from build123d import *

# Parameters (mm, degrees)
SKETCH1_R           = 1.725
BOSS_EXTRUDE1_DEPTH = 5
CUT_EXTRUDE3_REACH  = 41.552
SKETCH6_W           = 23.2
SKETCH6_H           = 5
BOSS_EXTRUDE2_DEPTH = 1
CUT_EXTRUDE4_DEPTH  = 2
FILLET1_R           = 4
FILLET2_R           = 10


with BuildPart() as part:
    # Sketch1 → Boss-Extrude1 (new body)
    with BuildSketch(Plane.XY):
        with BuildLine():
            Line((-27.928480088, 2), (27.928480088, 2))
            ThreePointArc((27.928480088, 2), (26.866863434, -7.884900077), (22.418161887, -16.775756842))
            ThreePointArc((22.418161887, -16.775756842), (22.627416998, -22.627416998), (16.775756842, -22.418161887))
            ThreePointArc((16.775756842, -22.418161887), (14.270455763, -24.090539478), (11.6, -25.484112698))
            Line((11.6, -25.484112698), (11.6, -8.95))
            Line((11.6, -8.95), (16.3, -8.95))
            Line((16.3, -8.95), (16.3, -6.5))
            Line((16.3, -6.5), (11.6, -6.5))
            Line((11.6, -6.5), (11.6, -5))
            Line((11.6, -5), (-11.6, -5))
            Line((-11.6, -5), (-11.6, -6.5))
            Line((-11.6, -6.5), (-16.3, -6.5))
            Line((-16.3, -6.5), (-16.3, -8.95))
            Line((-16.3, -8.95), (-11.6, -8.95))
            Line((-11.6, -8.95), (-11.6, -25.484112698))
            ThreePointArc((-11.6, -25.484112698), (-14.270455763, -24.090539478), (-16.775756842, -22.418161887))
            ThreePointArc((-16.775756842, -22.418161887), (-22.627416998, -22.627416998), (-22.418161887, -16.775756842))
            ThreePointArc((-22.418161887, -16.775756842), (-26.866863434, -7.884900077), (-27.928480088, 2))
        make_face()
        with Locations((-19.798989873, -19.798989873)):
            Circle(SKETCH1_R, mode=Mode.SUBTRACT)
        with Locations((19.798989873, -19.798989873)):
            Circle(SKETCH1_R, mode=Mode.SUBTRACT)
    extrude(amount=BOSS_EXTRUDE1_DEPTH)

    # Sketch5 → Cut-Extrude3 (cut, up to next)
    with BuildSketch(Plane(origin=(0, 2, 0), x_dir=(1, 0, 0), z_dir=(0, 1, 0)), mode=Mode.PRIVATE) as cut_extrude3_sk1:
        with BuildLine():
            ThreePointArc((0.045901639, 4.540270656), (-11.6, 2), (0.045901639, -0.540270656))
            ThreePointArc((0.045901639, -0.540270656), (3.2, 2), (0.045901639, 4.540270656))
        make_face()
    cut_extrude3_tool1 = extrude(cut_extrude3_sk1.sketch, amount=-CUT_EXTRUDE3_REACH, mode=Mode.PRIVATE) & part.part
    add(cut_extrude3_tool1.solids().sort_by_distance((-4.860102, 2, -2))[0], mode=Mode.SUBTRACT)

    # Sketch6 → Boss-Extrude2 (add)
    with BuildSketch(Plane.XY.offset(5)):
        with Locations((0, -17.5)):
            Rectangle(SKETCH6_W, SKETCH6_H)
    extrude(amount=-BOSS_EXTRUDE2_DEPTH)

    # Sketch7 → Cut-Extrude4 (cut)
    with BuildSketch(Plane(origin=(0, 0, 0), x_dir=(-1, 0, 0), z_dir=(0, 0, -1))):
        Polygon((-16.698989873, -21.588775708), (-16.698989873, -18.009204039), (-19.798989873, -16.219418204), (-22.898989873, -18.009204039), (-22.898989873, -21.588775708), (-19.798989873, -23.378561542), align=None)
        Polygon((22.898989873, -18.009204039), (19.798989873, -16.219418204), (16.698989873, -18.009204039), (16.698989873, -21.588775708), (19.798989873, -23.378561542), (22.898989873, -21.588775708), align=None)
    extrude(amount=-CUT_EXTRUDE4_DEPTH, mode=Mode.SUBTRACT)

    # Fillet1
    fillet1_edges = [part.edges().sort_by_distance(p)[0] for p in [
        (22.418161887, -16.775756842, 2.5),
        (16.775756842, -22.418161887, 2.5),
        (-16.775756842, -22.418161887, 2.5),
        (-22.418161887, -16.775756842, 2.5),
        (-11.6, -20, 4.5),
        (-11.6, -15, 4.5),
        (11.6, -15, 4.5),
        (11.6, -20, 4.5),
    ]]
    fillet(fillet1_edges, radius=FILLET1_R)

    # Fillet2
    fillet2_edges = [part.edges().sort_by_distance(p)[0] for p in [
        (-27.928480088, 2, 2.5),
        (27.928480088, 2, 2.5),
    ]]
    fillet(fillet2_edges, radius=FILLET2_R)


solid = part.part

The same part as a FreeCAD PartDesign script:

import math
import FreeCAD as App
import Part
import Sketcher
from FreeCAD import Vector
Q = App.Units.Quantity


def edges_at(feature, points):
    """Names of the edges that pass closest to the given points."""
    edges = feature.Shape.Edges
    near = lambda p: min(range(len(edges)), key=lambda i: edges[i].distToShape(Part.Vertex(*p))[0])
    return sorted({f"Edge{near(p) + 1}" for p in points})


def add_polygon(sketch, points):
    """Adds a closed chain of lines whose ends are joined by coincident constraints."""
    first, n = sketch.GeometryCount, len(points)
    for a, b in zip(points, points[1:] + points[:1]):
        sketch.addGeometry(Part.LineSegment(App.Vector(*a, 0), App.Vector(*b, 0)), False)
    for i in range(n):
        sketch.addConstraint(Sketcher.Constraint("Coincident", first + i, 2, first + (i + 1) % n, 1))

doc = App.newDocument("Part")
params = doc.addObject("Spreadsheet::Sheet", "Params")
for row, (alias, value) in enumerate([
    ("sketch1_radius", "28 mm"),
    ("sketch1_radius2", "4 mm"),
    ("sketch1_diameter", "3.45 mm"),
    ("sketch1_width", "4.7 mm"),
    ("sketch1_width2", "23.2 mm"),
    ("pad1_length", "5 mm"),
    ("sketch2_radius", "6.1 mm"),
    ("sketch2_radius2", "2.6 mm"),
    ("pocket1_length", "7 mm"),
    ("sketch3_height", "5 mm"),
    ("sketch3_width", "23.2 mm"),
    ("pad2_length", "1 mm"),
    ("pocket2_length", "2 mm"),
    ("fillet_radius", "4 mm"),
    ("fillet2_radius", "10 mm"),
], start=1):
    params.set(f"A{row}", alias)
    params.set(f"B{row}", "=" + value)
    params.setAlias(f"B{row}", alias)

body = doc.addObject("PartDesign::Body", "Body")

sketch1 = doc.addObject("Sketcher::SketchObject", "Sketch")
body.addObject(sketch1)
sketch1.AttachmentSupport = (doc.XY_Plane, [""])
sketch1.MapMode = "FlatFace"
sketch1.addGeometry(Part.LineSegment(Vector(27.9, 2, 0), Vector(-27.9, 2, 0)), False)
sketch1.addGeometry(Part.ArcOfCircle(Part.Circle(Vector(0, 0, 0), Vector(0, 0, 1), 28), math.radians(176), math.radians(217)), False)
sketch1.addGeometry(Part.ArcOfCircle(Part.Circle(Vector(-19.8, -19.8, 0), Vector(0, 0, 1), 4), math.radians(131), math.radians(319)), False)
sketch1.addGeometry(Part.ArcOfCircle(Part.Circle(Vector(0, 0, 0), Vector(0, 0, 1), 28), math.radians(-126.81), math.radians(-114.47)), False)
sketch1.addGeometry(Part.LineSegment(Vector(-11.6, -25.5, 0), Vector(-11.6, -8.9, 0)), False)
sketch1.addGeometry(Part.LineSegment(Vector(-11.6, -8.9, 0), Vector(-16.3, -8.9, 0)), False)
sketch1.addGeometry(Part.LineSegment(Vector(-16.3, -8.9, 0), Vector(-16.3, -6.5, 0)), False)
sketch1.addGeometry(Part.LineSegment(Vector(-16.3, -6.5, 0), Vector(-11.6, -6.5, 0)), False)
sketch1.addGeometry(Part.LineSegment(Vector(-11.6, -6.5, 0), Vector(-11.6, -5, 0)), False)
sketch1.addGeometry(Part.LineSegment(Vector(-11.6, -5, 0), Vector(11.6, -5, 0)), False)
sketch1.addGeometry(Part.LineSegment(Vector(11.6, -5, 0), Vector(11.6, -6.5, 0)), False)
sketch1.addGeometry(Part.LineSegment(Vector(11.6, -6.5, 0), Vector(16.3, -6.5, 0)), False)
sketch1.addGeometry(Part.LineSegment(Vector(16.3, -6.5, 0), Vector(16.3, -8.9, 0)), False)
sketch1.addGeometry(Part.LineSegment(Vector(16.3, -8.9, 0), Vector(11.6, -8.9, 0)), False)
sketch1.addGeometry(Part.LineSegment(Vector(11.6, -8.9, 0), Vector(11.6, -25.5, 0)), False)
sketch1.addGeometry(Part.ArcOfCircle(Part.Circle(Vector(0, 0, 0), Vector(0, 0, 1), 28), math.radians(-65.53), math.radians(-53.19)), False)
sketch1.addGeometry(Part.ArcOfCircle(Part.Circle(Vector(19.8, -19.8, 0), Vector(0, 0, 1), 4), math.radians(-139), math.radians(49)), False)
sketch1.addGeometry(Part.ArcOfCircle(Part.Circle(Vector(0, 0, 0), Vector(0, 0, 1), 28), math.radians(-37), math.radians(4)), False)
sketch1.addGeometry(Part.Circle(Vector(19.8, -19.8, 0), Vector(0, 0, 1), 1.7), False)
sketch1.addGeometry(Part.Circle(Vector(-19.8, -19.8, 0), Vector(0, 0, 1), 1.7), False)
sketch1.addConstraint(Sketcher.Constraint("Coincident", 0, 2, 1, 1))
sketch1.addConstraint(Sketcher.Constraint("Coincident", 1, 2, 2, 1))
sketch1.addConstraint(Sketcher.Constraint("Coincident", 2, 2, 3, 1))
sketch1.addConstraint(Sketcher.Constraint("Coincident", 3, 2, 4, 1))
sketch1.addConstraint(Sketcher.Constraint("Coincident", 4, 2, 5, 1))
sketch1.addConstraint(Sketcher.Constraint("Coincident", 5, 2, 6, 1))
sketch1.addConstraint(Sketcher.Constraint("Coincident", 6, 2, 7, 1))
sketch1.addConstraint(Sketcher.Constraint("Coincident", 7, 2, 8, 1))
sketch1.addConstraint(Sketcher.Constraint("Coincident", 8, 2, 9, 1))
sketch1.addConstraint(Sketcher.Constraint("Coincident", 9, 2, 10, 1))
sketch1.addConstraint(Sketcher.Constraint("Coincident", 10, 2, 11, 1))
sketch1.addConstraint(Sketcher.Constraint("Coincident", 11, 2, 12, 1))
sketch1.addConstraint(Sketcher.Constraint("Coincident", 12, 2, 13, 1))
sketch1.addConstraint(Sketcher.Constraint("Coincident", 13, 2, 14, 1))
sketch1.addConstraint(Sketcher.Constraint("Coincident", 14, 2, 15, 1))
sketch1.addConstraint(Sketcher.Constraint("Coincident", 15, 2, 16, 1))
sketch1.addConstraint(Sketcher.Constraint("Coincident", 16, 2, 17, 1))
sketch1.addConstraint(Sketcher.Constraint("Coincident", 17, 2, 0, 1))
sketch1.addConstraint(Sketcher.Constraint("Horizontal", 0))
sketch1.addConstraint(Sketcher.Constraint("Vertical", 4))
sketch1.addConstraint(Sketcher.Constraint("Horizontal", 5))
sketch1.addConstraint(Sketcher.Constraint("Vertical", 6))
sketch1.addConstraint(Sketcher.Constraint("Horizontal", 7))
sketch1.addConstraint(Sketcher.Constraint("Vertical", 8))
sketch1.addConstraint(Sketcher.Constraint("Horizontal", 9))
sketch1.addConstraint(Sketcher.Constraint("Vertical", 10))
sketch1.addConstraint(Sketcher.Constraint("Horizontal", 11))
sketch1.addConstraint(Sketcher.Constraint("Vertical", 12))
sketch1.addConstraint(Sketcher.Constraint("Horizontal", 13))
sketch1.addConstraint(Sketcher.Constraint("Vertical", 14))
sketch1.addConstraint(Sketcher.Constraint("Coincident", 1, 3, -1, 1))
sketch1.addConstraint(Sketcher.Constraint("Coincident", 3, 3, -1, 1))
sketch1.addConstraint(Sketcher.Constraint("Coincident", 15, 3, -1, 1))
sketch1.addConstraint(Sketcher.Constraint("Coincident", 17, 3, -1, 1))
sketch1.addConstraint(Sketcher.Constraint("Coincident", 18, 3, 16, 3))
sketch1.addConstraint(Sketcher.Constraint("Coincident", 19, 3, 2, 3))
sketch1.addConstraint(Sketcher.Constraint("Equal", 1, 3))
sketch1.addConstraint(Sketcher.Constraint("Equal", 3, 15))
sketch1.addConstraint(Sketcher.Constraint("Equal", 2, 16))
sketch1.addConstraint(Sketcher.Constraint("Equal", 15, 17))
sketch1.addConstraint(Sketcher.Constraint("Equal", 18, 19))
sketch1.addConstraint(Sketcher.Constraint("Symmetric", 2, 3, 16, 3, -2))
sketch1.addConstraint(Sketcher.Constraint("Symmetric", 7, 2, 10, 2, -2))
sketch1.addConstraint(Sketcher.Constraint("Symmetric", 5, 2, 12, 2, -2))
sketch1.addConstraint(Sketcher.Constraint("Horizontal", 3, 2, 14, 2))
sketch1.addConstraint(Sketcher.Constraint("Vertical", 4, 2, 7, 2))
sketch1.addConstraint(Sketcher.Constraint("Radius", 1, Q("28 mm")))
sketch1.addConstraint(Sketcher.Constraint("Radius", 2, Q("4 mm")))
sketch1.addConstraint(Sketcher.Constraint("Diameter", 18, Q("3.45 mm")))
sketch1.addConstraint(Sketcher.Constraint("DistanceX", 5, 2, 5, 1, Q("4.7 mm")))
sketch1.addConstraint(Sketcher.Constraint("DistanceX", 9, 1, 9, 2, Q("23.2 mm")))
sketch1.addConstraint(Sketcher.Constraint("DistanceY", 8, 1, 8, 2, Q("1.5 mm")))
sketch1.addConstraint(Sketcher.Constraint("DistanceY", -1, 1, 0, 2, Q("2 mm")))
sketch1.addConstraint(Sketcher.Constraint("DistanceY", 8, 2, -1, 1, Q("5 mm")))
sketch1.addConstraint(Sketcher.Constraint("DistanceY", 6, 1, 6, 2, Q("2.45 mm")))
sketch1.addConstraint(Sketcher.Constraint("DistanceX", 2, 3, -1, 1, Q("19.79899 mm")))
sketch1.addConstraint(Sketcher.Constraint("DistanceY", 2, 3, -1, 1, Q("19.79899 mm")))
sketch1.setExpression("Constraints[46]", "Params.sketch1_radius")
sketch1.setExpression("Constraints[47]", "Params.sketch1_radius2")
sketch1.setExpression("Constraints[48]", "Params.sketch1_diameter")
sketch1.setExpression("Constraints[49]", "Params.sketch1_width")
sketch1.setExpression("Constraints[50]", "Params.sketch1_width2")
pad1 = doc.addObject("PartDesign::Pad", "Pad")
body.addObject(pad1)
pad1.Profile = sketch1
pad1.setExpression("Length", "Params.pad1_length")

sketch2 = doc.addObject("Sketcher::SketchObject", "Sketch001")
body.addObject(sketch2)
sketch2.AttachmentSupport = (doc.XZ_Plane, [""])
sketch2.MapMode = "FlatFace"
sketch2.AttachmentOffset = App.Placement(Vector(0, 0, -2), App.Rotation())
sketch2.addGeometry(Part.ArcOfCircle(Part.Circle(Vector(-5.5, -2, 0), Vector(0, 0, 1), 6.1), math.radians(25), math.radians(335)), False)
sketch2.addGeometry(Part.ArcOfCircle(Part.Circle(Vector(0.6, -2, 0), Vector(0, 0, 1), 2.6), math.radians(-102), math.radians(102)), False)
sketch2.addConstraint(Sketcher.Constraint("Coincident", 0, 1, 1, 2))
sketch2.addConstraint(Sketcher.Constraint("Coincident", 1, 1, 0, 2))
sketch2.addConstraint(Sketcher.Constraint("Horizontal", 0, 3, 1, 3))
sketch2.addConstraint(Sketcher.Constraint("Radius", 0, Q("6.1 mm")))
sketch2.addConstraint(Sketcher.Constraint("Radius", 1, Q("2.6 mm")))
sketch2.addConstraint(Sketcher.Constraint("DistanceY", 0, 3, -1, 1, Q("2 mm")))
sketch2.addConstraint(Sketcher.Constraint("DistanceX", 0, 3, -1, 1, Q("5.5 mm")))
sketch2.addConstraint(Sketcher.Constraint("DistanceX", -1, 1, 1, 3, Q("0.6 mm")))
sketch2.setExpression("Constraints[3]", "Params.sketch2_radius")
sketch2.setExpression("Constraints[4]", "Params.sketch2_radius2")
pocket1 = doc.addObject("PartDesign::Pocket", "Pocket")
body.addObject(pocket1)
pocket1.Profile = sketch2
pocket1.setExpression("Length", "Params.pocket1_length")
pocket1.Reversed = True

sketch3 = doc.addObject("Sketcher::SketchObject", "Sketch002")
body.addObject(sketch3)
sketch3.AttachmentSupport = (doc.XY_Plane, [""])
sketch3.MapMode = "FlatFace"
sketch3.AttachmentOffset = App.Placement(Vector(0, 0, 5), App.Rotation())
add_polygon(sketch3, [(-12, -15), (-12, -20), (12, -20), (12, -15)])
sketch3.addConstraint(Sketcher.Constraint("Vertical", 0))
sketch3.addConstraint(Sketcher.Constraint("Horizontal", 1))
sketch3.addConstraint(Sketcher.Constraint("Vertical", 2))
sketch3.addConstraint(Sketcher.Constraint("Horizontal", 3))
sketch3.addConstraint(Sketcher.Constraint("DistanceY", 0, 2, 0, 1, Q("5 mm")))
sketch3.addConstraint(Sketcher.Constraint("DistanceX", 1, 1, 1, 2, Q("23.2 mm")))
sketch3.addConstraint(Sketcher.Constraint("DistanceY", 0, 2, -1, 1, Q("20 mm")))
sketch3.addConstraint(Sketcher.Constraint("DistanceX", 0, 2, -1, 1, Q("11.6 mm")))
sketch3.setExpression("Constraints[8]", "Params.sketch3_height")
sketch3.setExpression("Constraints[9]", "Params.sketch3_width")
pad2 = doc.addObject("PartDesign::Pad", "Pad001")
body.addObject(pad2)
pad2.Profile = sketch3
pad2.setExpression("Length", "Params.pad2_length")
pad2.Reversed = True

sketch4 = doc.addObject("Sketcher::SketchObject", "Sketch003")
body.addObject(sketch4)
sketch4.AttachmentSupport = (doc.XY_Plane, [""])
sketch4.MapMode = "FlatFace"
add_polygon(sketch4, [(16.7, -21.6), (16.7, -18), (19.8, -16.2), (22.9, -18), (22.9, -21.6), (19.8, -23.4)])
add_polygon(sketch4, [(-22.9, -18), (-19.8, -16.2), (-16.7, -18), (-16.7, -21.6), (-19.8, -23.4), (-22.9, -21.6)])
sketch4.addConstraint(Sketcher.Constraint("Vertical", 0))
sketch4.addConstraint(Sketcher.Constraint("Vertical", 3))
sketch4.addConstraint(Sketcher.Constraint("Vertical", 8))
sketch4.addConstraint(Sketcher.Constraint("Vertical", 11))
sketch4.addConstraint(Sketcher.Constraint("Symmetric", 1, 2, 6, 2, -2))
sketch4.addConstraint(Sketcher.Constraint("Symmetric", 0, 2, 7, 2, -2))
sketch4.addConstraint(Sketcher.Constraint("Symmetric", 4, 2, 9, 2, -2))
sketch4.addConstraint(Sketcher.Constraint("Symmetric", 3, 2, 10, 2, -2))
sketch4.addConstraint(Sketcher.Constraint("Parallel", 1, 4))
sketch4.addConstraint(Sketcher.Constraint("Parallel", 2, 5))
sketch4.addConstraint(Sketcher.Constraint("Parallel", 4, 6))
sketch4.addConstraint(Sketcher.Constraint("Parallel", 5, 7))
sketch4.addConstraint(Sketcher.Constraint("Parallel", 6, 9))
sketch4.addConstraint(Sketcher.Constraint("Horizontal", 0, 2, 2, 2))
sketch4.addConstraint(Sketcher.Constraint("Horizontal", 3, 2, 5, 2))
sketch4.addConstraint(Sketcher.Constraint("Angle", 1, Q("30 deg")))
sketch4.addConstraint(Sketcher.Constraint("DistanceX", 0, 2, 1, 2, Q("3.1 mm")))
sketch4.addConstraint(Sketcher.Constraint("DistanceY", 0, 1, 0, 2, Q("3.579572 mm")))
sketch4.addConstraint(Sketcher.Constraint("DistanceX", -1, 1, 0, 2, Q("16.69899 mm")))
sketch4.addConstraint(Sketcher.Constraint("DistanceY", 1, 2, -1, 1, Q("16.219418 mm")))
pocket2 = doc.addObject("PartDesign::Pocket", "Pocket001")
body.addObject(pocket2)
pocket2.Profile = sketch4
pocket2.setExpression("Length", "Params.pocket2_length")
pocket2.Reversed = True
doc.recompute()

fillet = doc.addObject("PartDesign::Fillet", "Fillet")
body.addObject(fillet)
fillet.Base = (pocket2, edges_at(pocket2, [
    (22.418, -16.776, 2.5),
    (16.776, -22.418, 2.5),
    (-16.776, -22.418, 2.5),
    (-22.418, -16.776, 2.5),
    (-11.6, -20, 4.5),
    (-11.6, -15, 4.5),
    (11.6, -15, 4.5),
    (11.6, -20, 4.5),
]))
fillet.setExpression("Radius", "Params.fillet_radius")
doc.recompute()

fillet2 = doc.addObject("PartDesign::Fillet", "Fillet001")
body.addObject(fillet2)
fillet2.Base = (fillet, edges_at(fillet, [(-27.928, 2, 2.5), (27.928, 2, 2.5)]))
fillet2.setExpression("Radius", "Params.fillet2_radius")

doc.recompute()
